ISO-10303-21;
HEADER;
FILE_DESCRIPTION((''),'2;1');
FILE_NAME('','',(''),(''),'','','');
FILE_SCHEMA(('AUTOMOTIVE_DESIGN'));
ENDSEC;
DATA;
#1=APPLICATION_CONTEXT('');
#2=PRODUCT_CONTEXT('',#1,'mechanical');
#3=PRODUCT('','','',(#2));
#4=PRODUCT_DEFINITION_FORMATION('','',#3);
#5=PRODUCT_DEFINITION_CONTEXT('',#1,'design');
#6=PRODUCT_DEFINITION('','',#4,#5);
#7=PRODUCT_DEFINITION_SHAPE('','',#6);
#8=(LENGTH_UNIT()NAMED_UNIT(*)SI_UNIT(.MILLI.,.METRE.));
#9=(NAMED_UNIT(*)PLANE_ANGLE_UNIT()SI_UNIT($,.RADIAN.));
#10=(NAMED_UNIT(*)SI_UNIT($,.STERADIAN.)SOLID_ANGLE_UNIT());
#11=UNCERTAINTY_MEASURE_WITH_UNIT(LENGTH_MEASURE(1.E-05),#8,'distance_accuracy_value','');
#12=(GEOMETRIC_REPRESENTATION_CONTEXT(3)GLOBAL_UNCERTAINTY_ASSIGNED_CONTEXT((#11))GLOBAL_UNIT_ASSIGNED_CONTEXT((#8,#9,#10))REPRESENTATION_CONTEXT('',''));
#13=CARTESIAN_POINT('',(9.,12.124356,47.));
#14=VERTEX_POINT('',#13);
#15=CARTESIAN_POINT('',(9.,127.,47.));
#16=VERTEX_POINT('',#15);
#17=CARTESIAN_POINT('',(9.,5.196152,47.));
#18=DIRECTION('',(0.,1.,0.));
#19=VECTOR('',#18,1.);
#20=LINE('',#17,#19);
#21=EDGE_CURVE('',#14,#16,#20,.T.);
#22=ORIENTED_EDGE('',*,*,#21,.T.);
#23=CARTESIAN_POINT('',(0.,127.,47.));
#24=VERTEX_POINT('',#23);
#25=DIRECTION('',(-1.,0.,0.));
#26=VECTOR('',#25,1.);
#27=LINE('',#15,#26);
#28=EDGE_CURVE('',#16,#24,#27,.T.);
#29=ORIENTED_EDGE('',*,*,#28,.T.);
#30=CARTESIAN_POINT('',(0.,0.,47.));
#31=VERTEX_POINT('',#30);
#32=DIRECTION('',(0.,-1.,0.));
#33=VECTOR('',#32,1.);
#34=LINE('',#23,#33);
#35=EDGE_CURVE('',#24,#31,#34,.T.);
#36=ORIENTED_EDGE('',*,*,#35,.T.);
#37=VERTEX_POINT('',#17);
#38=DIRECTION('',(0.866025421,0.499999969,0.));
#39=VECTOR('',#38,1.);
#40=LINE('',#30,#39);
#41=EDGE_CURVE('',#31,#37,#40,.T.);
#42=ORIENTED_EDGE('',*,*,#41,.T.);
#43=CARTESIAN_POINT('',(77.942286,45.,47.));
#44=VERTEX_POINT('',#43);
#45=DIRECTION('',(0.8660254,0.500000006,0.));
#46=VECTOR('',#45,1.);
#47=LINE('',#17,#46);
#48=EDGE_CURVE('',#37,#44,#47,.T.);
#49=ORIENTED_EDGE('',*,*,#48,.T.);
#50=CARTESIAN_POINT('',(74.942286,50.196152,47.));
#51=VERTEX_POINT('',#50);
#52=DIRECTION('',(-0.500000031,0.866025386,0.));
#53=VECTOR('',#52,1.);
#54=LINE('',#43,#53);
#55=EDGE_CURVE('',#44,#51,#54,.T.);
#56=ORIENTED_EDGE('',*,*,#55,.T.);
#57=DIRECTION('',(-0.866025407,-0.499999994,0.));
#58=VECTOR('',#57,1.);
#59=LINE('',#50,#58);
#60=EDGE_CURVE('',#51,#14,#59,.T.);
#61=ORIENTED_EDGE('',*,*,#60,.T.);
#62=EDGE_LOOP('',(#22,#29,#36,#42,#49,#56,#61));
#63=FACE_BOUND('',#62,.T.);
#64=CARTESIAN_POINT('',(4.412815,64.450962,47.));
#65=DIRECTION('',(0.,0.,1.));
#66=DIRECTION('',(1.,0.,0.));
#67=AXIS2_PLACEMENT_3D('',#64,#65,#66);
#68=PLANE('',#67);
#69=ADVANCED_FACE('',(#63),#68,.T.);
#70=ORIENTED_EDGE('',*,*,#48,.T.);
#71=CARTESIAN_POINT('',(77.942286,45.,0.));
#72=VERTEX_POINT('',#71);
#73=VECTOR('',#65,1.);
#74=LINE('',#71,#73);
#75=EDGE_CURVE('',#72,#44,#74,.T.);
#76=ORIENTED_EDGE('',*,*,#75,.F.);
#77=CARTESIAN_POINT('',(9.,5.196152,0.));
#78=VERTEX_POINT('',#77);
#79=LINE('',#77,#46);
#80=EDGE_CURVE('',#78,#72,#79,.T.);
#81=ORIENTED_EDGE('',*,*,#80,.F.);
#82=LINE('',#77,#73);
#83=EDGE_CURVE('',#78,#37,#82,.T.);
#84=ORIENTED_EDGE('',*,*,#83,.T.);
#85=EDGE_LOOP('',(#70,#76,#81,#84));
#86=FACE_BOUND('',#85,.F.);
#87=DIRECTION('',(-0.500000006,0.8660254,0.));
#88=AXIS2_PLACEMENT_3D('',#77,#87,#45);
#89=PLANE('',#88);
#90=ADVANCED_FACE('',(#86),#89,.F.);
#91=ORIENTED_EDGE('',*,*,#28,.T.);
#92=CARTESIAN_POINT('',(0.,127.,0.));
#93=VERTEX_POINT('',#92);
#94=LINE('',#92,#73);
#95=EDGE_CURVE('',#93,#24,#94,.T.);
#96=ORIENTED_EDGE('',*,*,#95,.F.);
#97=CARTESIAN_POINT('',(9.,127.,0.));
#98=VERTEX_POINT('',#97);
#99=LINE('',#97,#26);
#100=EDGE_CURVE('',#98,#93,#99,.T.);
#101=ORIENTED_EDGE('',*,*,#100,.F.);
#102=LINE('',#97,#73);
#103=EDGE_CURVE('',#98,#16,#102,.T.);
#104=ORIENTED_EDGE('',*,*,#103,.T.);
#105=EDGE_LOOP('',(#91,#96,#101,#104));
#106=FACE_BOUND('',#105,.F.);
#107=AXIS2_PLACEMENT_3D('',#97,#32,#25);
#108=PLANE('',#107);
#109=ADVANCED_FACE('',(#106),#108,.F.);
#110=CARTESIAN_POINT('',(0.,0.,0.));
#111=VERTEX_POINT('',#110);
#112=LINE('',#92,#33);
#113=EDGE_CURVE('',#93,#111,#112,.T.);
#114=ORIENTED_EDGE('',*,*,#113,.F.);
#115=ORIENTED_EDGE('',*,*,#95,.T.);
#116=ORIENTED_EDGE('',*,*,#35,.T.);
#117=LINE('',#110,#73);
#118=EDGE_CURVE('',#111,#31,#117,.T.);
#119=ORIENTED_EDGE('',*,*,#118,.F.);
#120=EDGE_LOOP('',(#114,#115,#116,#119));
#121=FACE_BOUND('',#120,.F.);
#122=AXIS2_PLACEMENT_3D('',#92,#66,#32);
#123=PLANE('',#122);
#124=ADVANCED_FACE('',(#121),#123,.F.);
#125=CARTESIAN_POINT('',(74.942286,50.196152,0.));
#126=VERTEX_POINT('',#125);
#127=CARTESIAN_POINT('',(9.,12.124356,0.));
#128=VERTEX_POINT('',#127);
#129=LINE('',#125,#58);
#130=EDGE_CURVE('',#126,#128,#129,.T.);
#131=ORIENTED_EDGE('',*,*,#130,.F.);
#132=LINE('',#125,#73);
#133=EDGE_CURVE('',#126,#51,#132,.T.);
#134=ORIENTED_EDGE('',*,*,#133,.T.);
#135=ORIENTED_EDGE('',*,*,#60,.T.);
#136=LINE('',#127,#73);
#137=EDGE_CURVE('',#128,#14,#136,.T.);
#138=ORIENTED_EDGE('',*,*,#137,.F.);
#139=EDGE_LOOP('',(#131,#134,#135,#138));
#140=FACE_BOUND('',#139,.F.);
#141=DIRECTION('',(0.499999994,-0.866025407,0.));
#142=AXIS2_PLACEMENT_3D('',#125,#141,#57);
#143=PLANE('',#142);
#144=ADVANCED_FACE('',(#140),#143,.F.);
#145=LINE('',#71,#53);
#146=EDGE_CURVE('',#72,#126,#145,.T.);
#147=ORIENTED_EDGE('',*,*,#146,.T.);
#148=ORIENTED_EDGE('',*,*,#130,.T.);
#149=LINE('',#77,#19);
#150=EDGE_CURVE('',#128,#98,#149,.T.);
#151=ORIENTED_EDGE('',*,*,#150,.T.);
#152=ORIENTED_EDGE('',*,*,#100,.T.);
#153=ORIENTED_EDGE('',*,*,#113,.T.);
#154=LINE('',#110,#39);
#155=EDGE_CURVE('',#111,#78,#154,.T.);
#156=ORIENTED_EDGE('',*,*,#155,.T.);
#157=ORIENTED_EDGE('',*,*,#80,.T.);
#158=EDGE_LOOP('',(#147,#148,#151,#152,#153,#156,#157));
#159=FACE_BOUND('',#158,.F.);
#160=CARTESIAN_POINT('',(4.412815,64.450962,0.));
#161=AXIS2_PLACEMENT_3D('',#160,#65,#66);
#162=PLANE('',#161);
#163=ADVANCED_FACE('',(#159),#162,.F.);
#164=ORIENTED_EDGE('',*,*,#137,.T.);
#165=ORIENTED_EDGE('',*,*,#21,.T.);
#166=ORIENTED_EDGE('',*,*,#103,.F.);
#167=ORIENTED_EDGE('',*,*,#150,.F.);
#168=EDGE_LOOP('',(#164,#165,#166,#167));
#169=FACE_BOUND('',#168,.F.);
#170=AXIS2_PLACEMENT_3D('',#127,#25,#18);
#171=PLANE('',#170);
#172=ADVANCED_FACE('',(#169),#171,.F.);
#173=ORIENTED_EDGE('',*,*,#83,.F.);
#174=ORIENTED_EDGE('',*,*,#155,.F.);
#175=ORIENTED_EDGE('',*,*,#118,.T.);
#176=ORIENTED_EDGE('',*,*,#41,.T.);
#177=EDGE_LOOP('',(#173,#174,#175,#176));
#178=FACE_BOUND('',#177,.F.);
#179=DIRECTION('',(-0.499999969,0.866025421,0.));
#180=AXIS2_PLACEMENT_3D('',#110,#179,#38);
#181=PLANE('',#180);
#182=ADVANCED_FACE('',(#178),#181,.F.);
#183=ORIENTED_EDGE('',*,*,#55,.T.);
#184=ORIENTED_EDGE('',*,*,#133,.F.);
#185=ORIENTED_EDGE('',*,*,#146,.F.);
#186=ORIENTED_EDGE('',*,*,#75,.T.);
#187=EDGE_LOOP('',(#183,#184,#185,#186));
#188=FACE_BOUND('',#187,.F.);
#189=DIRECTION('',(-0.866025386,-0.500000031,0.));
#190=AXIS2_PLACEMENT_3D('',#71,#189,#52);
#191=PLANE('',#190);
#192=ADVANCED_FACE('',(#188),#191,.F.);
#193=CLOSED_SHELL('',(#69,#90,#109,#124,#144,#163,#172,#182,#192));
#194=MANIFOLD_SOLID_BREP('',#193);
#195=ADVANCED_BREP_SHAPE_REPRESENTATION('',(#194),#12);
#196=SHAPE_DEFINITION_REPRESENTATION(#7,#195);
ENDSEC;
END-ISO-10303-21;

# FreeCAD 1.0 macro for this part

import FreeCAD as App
import Part
import Sketcher

V = App.Vector
Q = App.Units.Quantity


def add_polygon(sketch, points):
    """Adds a closed chain of lines whose ends are joined by coincident constraints."""
    first, n = sketch.GeometryCount, len(points)
    for a, b in zip(points, points[1:] + points[:1]):
        sketch.addGeometry(Part.LineSegment(App.Vector(*a, 0), App.Vector(*b, 0)), False)
    for i in range(n):
        sketch.addConstraint(Sketcher.Constraint("Coincident", first + i, 2, first + (i + 1) % n, 1))

doc = App.newDocument("Part")
body = doc.addObject("PartDesign::Body", "Body")

# Sketch on XY plane
sketch1 = doc.addObject("Sketcher::SketchObject", "Sketch")
body.addObject(sketch1)
sketch1.AttachmentSupport = (doc.XY_Plane, [""])
sketch1.MapMode = "FlatFace"
add_polygon(sketch1, [(0, 127), (0, 0), (9, 5), (78, 45), (75, 50), (9, 12), (9, 127)])  # lines 0-6
sketch1.addConstraint(Sketcher.Constraint("Vertical", 0))
sketch1.addConstraint(Sketcher.Constraint("Vertical", 5))
sketch1.addConstraint(Sketcher.Constraint("Horizontal", 6))
sketch1.addConstraint(Sketcher.Constraint("Coincident", 0, 2, -1, 1))
sketch1.addConstraint(Sketcher.Constraint("Parallel", 1, 2))
sketch1.addConstraint(Sketcher.Constraint("Perpendicular", 2, 3))
sketch1.addConstraint(Sketcher.Constraint("Perpendicular", 3, 4))
sketch1.addConstraint(Sketcher.Constraint("Vertical", 1, 2, 4, 2))
sketch1.addConstraint(Sketcher.Constraint("DistanceX", 6, 2, 6, 1, 9.0))
sketch1.addConstraint(Sketcher.Constraint("DistanceY", 0, 2, 0, 1, 127.0))
sketch1.addConstraint(Sketcher.Constraint("Angle", 1, Q("29.999998 deg")))
sketch1.addConstraint(Sketcher.Constraint("Distance", 3, 6.0))
sketch1.addConstraint(Sketcher.Constraint("DistanceY", -1, 1, 2, 2, 45.0))
pad1 = doc.addObject("PartDesign::Pad", "Pad")
body.addObject(pad1)
pad1.Profile = sketch1
pad1.Length = 47

doc.recompute()
